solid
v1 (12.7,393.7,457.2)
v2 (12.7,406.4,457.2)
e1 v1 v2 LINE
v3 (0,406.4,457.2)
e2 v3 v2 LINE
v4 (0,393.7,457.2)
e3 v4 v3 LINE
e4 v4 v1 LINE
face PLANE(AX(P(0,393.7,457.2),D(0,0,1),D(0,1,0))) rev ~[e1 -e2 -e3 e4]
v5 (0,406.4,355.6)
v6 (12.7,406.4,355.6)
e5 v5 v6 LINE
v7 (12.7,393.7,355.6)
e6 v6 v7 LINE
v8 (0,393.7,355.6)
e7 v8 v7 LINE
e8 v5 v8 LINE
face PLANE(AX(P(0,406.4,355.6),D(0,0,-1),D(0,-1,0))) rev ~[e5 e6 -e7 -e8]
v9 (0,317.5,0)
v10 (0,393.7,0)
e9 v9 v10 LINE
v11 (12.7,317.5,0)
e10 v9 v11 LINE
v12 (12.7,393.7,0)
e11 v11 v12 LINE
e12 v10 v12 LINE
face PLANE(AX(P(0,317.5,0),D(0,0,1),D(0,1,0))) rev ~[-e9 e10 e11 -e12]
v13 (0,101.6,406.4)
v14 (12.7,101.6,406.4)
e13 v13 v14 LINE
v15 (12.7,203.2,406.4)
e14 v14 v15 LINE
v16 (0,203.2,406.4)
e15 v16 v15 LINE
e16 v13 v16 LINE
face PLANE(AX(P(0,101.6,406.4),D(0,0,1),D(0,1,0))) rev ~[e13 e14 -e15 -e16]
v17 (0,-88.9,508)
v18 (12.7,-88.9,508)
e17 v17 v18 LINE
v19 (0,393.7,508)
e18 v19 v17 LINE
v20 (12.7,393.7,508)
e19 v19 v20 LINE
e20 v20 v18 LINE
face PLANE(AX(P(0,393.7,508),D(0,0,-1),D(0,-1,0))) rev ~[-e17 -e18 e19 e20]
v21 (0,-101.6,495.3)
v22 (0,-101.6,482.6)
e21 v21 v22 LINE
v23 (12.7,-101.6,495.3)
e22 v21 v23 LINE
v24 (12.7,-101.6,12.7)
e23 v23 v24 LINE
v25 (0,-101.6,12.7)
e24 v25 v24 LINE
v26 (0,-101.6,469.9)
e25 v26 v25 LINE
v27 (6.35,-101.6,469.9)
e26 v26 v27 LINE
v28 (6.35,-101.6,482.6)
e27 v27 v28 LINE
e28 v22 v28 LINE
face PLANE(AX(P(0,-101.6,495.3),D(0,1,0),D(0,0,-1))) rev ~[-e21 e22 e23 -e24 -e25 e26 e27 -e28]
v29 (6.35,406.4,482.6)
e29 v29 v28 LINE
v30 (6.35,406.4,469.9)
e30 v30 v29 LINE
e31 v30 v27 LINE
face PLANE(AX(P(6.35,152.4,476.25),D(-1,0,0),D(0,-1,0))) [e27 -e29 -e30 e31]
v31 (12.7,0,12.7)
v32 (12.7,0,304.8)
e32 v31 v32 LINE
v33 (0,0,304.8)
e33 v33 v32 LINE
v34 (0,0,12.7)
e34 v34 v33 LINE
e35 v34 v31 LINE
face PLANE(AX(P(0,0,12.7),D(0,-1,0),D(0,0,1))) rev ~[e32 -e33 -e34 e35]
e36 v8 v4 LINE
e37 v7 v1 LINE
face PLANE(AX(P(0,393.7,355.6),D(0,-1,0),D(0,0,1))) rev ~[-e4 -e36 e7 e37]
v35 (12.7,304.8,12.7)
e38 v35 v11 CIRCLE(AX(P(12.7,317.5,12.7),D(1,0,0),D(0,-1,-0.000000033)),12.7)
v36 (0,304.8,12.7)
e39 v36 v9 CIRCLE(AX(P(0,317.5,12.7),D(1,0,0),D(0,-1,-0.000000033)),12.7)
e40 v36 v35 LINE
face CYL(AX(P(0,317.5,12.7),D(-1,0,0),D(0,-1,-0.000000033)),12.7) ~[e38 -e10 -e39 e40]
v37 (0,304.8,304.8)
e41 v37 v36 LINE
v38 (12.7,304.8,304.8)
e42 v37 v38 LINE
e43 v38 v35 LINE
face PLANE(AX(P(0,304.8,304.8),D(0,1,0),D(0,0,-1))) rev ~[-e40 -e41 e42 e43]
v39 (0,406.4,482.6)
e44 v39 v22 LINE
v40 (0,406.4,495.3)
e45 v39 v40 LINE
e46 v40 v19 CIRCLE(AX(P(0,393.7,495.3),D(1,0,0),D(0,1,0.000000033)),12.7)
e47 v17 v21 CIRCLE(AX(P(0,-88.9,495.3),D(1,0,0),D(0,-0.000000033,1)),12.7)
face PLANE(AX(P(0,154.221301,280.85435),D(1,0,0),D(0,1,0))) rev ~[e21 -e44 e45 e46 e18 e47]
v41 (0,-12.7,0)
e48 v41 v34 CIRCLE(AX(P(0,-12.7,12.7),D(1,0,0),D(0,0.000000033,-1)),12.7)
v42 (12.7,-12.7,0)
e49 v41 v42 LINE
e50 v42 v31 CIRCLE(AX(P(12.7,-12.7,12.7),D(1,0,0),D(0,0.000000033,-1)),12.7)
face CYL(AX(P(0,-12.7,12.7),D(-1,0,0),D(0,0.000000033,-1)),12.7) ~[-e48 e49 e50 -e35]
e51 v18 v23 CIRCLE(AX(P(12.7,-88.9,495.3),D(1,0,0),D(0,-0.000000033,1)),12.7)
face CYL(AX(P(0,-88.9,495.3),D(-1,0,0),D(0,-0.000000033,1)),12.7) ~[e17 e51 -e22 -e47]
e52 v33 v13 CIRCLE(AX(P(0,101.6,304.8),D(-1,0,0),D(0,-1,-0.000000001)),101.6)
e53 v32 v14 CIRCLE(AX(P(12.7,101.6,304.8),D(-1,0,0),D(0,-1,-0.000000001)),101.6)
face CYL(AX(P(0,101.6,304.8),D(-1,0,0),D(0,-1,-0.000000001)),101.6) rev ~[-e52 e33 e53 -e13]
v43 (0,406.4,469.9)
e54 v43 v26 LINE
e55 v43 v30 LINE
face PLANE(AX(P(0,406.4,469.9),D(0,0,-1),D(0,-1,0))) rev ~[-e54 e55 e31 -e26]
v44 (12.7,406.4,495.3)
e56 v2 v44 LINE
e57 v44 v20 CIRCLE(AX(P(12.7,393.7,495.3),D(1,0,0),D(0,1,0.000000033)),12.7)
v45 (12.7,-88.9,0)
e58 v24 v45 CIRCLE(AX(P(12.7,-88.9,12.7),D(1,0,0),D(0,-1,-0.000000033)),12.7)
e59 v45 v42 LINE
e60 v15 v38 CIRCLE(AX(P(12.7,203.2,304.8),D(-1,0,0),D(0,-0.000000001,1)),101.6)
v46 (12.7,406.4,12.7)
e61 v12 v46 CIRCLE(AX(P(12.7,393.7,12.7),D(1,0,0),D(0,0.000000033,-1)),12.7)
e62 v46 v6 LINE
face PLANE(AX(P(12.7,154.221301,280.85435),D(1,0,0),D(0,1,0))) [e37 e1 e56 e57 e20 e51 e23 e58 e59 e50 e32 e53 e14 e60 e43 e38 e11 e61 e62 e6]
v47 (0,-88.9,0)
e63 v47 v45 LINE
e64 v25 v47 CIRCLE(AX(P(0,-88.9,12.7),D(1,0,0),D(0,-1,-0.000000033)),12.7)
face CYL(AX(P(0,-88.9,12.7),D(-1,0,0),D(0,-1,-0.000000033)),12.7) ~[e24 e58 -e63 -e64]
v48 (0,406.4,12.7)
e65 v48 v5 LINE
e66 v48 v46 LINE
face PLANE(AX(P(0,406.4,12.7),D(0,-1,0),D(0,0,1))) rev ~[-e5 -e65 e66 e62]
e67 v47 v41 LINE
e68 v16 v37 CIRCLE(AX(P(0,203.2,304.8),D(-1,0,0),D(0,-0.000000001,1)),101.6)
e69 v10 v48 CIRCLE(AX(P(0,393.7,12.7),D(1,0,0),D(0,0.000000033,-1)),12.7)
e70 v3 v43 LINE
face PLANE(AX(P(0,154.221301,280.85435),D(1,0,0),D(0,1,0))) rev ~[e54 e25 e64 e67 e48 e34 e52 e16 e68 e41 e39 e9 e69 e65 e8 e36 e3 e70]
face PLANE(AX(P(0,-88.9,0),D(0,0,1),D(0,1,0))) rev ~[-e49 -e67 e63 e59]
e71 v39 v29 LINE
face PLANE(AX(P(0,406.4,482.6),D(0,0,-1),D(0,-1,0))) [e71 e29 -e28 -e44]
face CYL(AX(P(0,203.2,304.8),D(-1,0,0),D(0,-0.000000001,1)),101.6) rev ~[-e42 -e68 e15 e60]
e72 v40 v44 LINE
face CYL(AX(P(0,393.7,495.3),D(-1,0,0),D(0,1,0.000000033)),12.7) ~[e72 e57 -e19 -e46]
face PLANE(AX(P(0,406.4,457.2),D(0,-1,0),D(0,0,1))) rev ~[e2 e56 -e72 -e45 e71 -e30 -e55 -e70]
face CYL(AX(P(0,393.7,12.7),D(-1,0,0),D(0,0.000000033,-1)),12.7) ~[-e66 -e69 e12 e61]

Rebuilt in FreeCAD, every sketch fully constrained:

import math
import FreeCAD as App
import Part
import Sketcher

V = App.Vector
Q = App.Units.Quantity

doc = App.newDocument("Part")
body = doc.addObject("PartDesign::Body", "Body")

# Sketch on YZ plane
sketch1 = body.newObject("Sketcher::SketchObject", "Sketch")
sketch1.AttachmentSupport = (doc.getObject("YZ_Plane"), [""])
sketch1.MapMode = "FlatFace"
sketch1.addGeometry([
    Part.ArcOfCircle(Part.Circle(V(-89, 13, 0), V(0, 0, 1), 13), math.radians(-180), math.radians(-90)),  # 0
    Part.LineSegment(V(-89, 0, 0), V(-13, 0, 0)),  # 1
    Part.ArcOfCircle(Part.Circle(V(-13, 13, 0), V(0, 0, 1), 13), math.radians(-90), math.radians(0)),  # 2
    Part.LineSegment(V(0, 13, 0), V(0, 305, 0)),  # 3
    Part.ArcOfCircle(Part.Circle(V(102, 305, 0), V(0, 0, 1), 102), math.radians(90), math.radians(180)),  # 4
    Part.LineSegment(V(102, 406, 0), V(203, 406, 0)),  # 5
    Part.ArcOfCircle(Part.Circle(V(203, 305, 0), V(0, 0, 1), 102), math.radians(0), math.radians(90)),  # 6
    Part.LineSegment(V(305, 305, 0), V(305, 13, 0)),  # 7
    Part.ArcOfCircle(Part.Circle(V(318, 13, 0), V(0, 0, 1), 13), math.radians(-180), math.radians(-90)),  # 8
    Part.LineSegment(V(318, 0, 0), V(394, 0, 0)),  # 9
    Part.ArcOfCircle(Part.Circle(V(394, 13, 0), V(0, 0, 1), 13), math.radians(-90), math.radians(0)),  # 10
    Part.LineSegment(V(406, 13, 0), V(406, 356, 0)),  # 11
    Part.LineSegment(V(406, 356, 0), V(394, 356, 0)),  # 12
    Part.LineSegment(V(394, 356, 0), V(394, 457, 0)),  # 13
    Part.LineSegment(V(394, 457, 0), V(406, 457, 0)),  # 14
    Part.LineSegment(V(406, 457, 0), V(406, 495, 0)),  # 15
    Part.ArcOfCircle(Part.Circle(V(394, 495, 0), V(0, 0, 1), 13), math.radians(0), math.radians(90)),  # 16
    Part.LineSegment(V(394, 508, 0), V(-89, 508, 0)),  # 17
    Part.ArcOfCircle(Part.Circle(V(-89, 495, 0), V(0, 0, 1), 13), math.radians(90), math.radians(180)),  # 18
    Part.LineSegment(V(-102, 495, 0), V(-102, 13, 0)),  # 19
], False)
sketch1.addConstraint([
    Sketcher.Constraint("Tangent", 0, 2, 1, 1),
    Sketcher.Constraint("Tangent", 1, 2, 2, 1),
    Sketcher.Constraint("Tangent", 2, 2, 3, 1),
    Sketcher.Constraint("Tangent", 3, 2, 4, 2),
    Sketcher.Constraint("Tangent", 4, 1, 5, 1),
    Sketcher.Constraint("Tangent", 5, 2, 6, 2),
    Sketcher.Constraint("Tangent", 6, 1, 7, 1),
    Sketcher.Constraint("Tangent", 7, 2, 8, 1),
    Sketcher.Constraint("Tangent", 8, 2, 9, 1),
    Sketcher.Constraint("Tangent", 9, 2, 10, 1),
    Sketcher.Constraint("Tangent", 10, 2, 11, 1),
    Sketcher.Constraint("Coincident", 11, 2, 12, 1),
    Sketcher.Constraint("Coincident", 12, 2, 13, 1),
    Sketcher.Constraint("Coincident", 13, 2, 14, 1),
    Sketcher.Constraint("Coincident", 14, 2, 15, 1),
    Sketcher.Constraint("Tangent", 15, 2, 16, 1),
    Sketcher.Constraint("Tangent", 16, 2, 17, 1),
    Sketcher.Constraint("Tangent", 17, 2, 18, 1),
    Sketcher.Constraint("Tangent", 18, 2, 19, 1),
    Sketcher.Constraint("Tangent", 19, 2, 0, 1),
    Sketcher.Constraint("Horizontal", 1),
    Sketcher.Constraint("Vertical", 3),
    Sketcher.Constraint("Horizontal", 5),
    Sketcher.Constraint("Vertical", 7),
    Sketcher.Constraint("Horizontal", 9),
    Sketcher.Constraint("Vertical", 11),
    Sketcher.Constraint("Horizontal", 12),
    Sketcher.Constraint("Vertical", 13),
    Sketcher.Constraint("Horizontal", 14),
    Sketcher.Constraint("Vertical", 15),
    Sketcher.Constraint("Horizontal", 17),
    Sketcher.Constraint("Vertical", 19),
    Sketcher.Constraint("Equal", 0, 2),
    Sketcher.Constraint("Equal", 4, 6),
    Sketcher.Constraint("Equal", 2, 8),
    Sketcher.Constraint("Equal", 8, 10),
    Sketcher.Constraint("Equal", 10, 16),
    Sketcher.Constraint("Equal", 16, 18),
    Sketcher.Constraint("PointOnObject", 0, 2, -1),
    Sketcher.Constraint("PointOnObject", 2, 2, -2),
    Sketcher.Constraint("PointOnObject", 8, 2, -1),
    Sketcher.Constraint("Vertical", 10, 3, 16, 3),
    Sketcher.Constraint("Vertical", 9, 2, 12, 2),
    Sketcher.Constraint("Equal", 1, 9),
    Sketcher.Constraint("Equal", 5, 13),
    Sketcher.Constraint("Equal", 17, 19),
    Sketcher.Constraint("Radius", 4, Q("4 in")),
    Sketcher.Constraint("Radius", 0, Q("0.5 in")),
    Sketcher.Constraint("DistanceX", 1, 1, 1, 2, Q("3 in")),
    Sketcher.Constraint("DistanceX", 5, 1, 5, 2, Q("4 in")),
    Sketcher.Constraint("DistanceY", 3, 1, 3, 2, Q("11.5 in")),
    Sketcher.Constraint("DistanceY", 11, 1, 11, 2, Q("13.5 in")),
])
pad1 = body.newObject("PartDesign::Pad", "Pad")
pad1.Profile = sketch1
pad1.Length = Q("0.5 in")

# Sketch on YZ plane
sketch2 = body.newObject("Sketcher::SketchObject", "Sketch001")
sketch2.AttachmentSupport = (doc.getObject("YZ_Plane"), [""])
sketch2.MapMode = "FlatFace"
sketch2.addGeometry([
    Part.LineSegment(V(406, 483, 0), V(406, 470, 0)),
    Part.LineSegment(V(406, 470, 0), V(-102, 470, 0)),
    Part.LineSegment(V(-102, 470, 0), V(-102, 483, 0)),
    Part.LineSegment(V(-102, 483, 0), V(406, 483, 0)),
], False)
sketch2.addConstraint([
    Sketcher.Constraint("Coincident", 0, 2, 1, 1),
    Sketcher.Constraint("Coincident", 1, 2, 2, 1),
    Sketcher.Constraint("Coincident", 2, 2, 3, 1),
    Sketcher.Constraint("Coincident", 3, 2, 0, 1),
    Sketcher.Constraint("Vertical", 0),
    Sketcher.Constraint("Horizontal", 1),
    Sketcher.Constraint("Vertical", 2),
    Sketcher.Constraint("Horizontal", 3),
    Sketcher.Constraint("DistanceX", 1, 2, 1, 1, Q("20 in")),
    Sketcher.Constraint("DistanceY", 0, 2, 0, 1, Q("0.5 in")),
    Sketcher.Constraint("DistanceX", -1, 1, 0, 2, Q("16 in")),
    Sketcher.Constraint("DistanceY", -1, 1, 2, 2, Q("19 in")),
])
pocket1 = body.newObject("PartDesign::Pocket", "Pocket")
pocket1.Profile = sketch2
pocket1.Length = Q("0.25 in")
pocket1.Reversed = True

doc.recompute()
